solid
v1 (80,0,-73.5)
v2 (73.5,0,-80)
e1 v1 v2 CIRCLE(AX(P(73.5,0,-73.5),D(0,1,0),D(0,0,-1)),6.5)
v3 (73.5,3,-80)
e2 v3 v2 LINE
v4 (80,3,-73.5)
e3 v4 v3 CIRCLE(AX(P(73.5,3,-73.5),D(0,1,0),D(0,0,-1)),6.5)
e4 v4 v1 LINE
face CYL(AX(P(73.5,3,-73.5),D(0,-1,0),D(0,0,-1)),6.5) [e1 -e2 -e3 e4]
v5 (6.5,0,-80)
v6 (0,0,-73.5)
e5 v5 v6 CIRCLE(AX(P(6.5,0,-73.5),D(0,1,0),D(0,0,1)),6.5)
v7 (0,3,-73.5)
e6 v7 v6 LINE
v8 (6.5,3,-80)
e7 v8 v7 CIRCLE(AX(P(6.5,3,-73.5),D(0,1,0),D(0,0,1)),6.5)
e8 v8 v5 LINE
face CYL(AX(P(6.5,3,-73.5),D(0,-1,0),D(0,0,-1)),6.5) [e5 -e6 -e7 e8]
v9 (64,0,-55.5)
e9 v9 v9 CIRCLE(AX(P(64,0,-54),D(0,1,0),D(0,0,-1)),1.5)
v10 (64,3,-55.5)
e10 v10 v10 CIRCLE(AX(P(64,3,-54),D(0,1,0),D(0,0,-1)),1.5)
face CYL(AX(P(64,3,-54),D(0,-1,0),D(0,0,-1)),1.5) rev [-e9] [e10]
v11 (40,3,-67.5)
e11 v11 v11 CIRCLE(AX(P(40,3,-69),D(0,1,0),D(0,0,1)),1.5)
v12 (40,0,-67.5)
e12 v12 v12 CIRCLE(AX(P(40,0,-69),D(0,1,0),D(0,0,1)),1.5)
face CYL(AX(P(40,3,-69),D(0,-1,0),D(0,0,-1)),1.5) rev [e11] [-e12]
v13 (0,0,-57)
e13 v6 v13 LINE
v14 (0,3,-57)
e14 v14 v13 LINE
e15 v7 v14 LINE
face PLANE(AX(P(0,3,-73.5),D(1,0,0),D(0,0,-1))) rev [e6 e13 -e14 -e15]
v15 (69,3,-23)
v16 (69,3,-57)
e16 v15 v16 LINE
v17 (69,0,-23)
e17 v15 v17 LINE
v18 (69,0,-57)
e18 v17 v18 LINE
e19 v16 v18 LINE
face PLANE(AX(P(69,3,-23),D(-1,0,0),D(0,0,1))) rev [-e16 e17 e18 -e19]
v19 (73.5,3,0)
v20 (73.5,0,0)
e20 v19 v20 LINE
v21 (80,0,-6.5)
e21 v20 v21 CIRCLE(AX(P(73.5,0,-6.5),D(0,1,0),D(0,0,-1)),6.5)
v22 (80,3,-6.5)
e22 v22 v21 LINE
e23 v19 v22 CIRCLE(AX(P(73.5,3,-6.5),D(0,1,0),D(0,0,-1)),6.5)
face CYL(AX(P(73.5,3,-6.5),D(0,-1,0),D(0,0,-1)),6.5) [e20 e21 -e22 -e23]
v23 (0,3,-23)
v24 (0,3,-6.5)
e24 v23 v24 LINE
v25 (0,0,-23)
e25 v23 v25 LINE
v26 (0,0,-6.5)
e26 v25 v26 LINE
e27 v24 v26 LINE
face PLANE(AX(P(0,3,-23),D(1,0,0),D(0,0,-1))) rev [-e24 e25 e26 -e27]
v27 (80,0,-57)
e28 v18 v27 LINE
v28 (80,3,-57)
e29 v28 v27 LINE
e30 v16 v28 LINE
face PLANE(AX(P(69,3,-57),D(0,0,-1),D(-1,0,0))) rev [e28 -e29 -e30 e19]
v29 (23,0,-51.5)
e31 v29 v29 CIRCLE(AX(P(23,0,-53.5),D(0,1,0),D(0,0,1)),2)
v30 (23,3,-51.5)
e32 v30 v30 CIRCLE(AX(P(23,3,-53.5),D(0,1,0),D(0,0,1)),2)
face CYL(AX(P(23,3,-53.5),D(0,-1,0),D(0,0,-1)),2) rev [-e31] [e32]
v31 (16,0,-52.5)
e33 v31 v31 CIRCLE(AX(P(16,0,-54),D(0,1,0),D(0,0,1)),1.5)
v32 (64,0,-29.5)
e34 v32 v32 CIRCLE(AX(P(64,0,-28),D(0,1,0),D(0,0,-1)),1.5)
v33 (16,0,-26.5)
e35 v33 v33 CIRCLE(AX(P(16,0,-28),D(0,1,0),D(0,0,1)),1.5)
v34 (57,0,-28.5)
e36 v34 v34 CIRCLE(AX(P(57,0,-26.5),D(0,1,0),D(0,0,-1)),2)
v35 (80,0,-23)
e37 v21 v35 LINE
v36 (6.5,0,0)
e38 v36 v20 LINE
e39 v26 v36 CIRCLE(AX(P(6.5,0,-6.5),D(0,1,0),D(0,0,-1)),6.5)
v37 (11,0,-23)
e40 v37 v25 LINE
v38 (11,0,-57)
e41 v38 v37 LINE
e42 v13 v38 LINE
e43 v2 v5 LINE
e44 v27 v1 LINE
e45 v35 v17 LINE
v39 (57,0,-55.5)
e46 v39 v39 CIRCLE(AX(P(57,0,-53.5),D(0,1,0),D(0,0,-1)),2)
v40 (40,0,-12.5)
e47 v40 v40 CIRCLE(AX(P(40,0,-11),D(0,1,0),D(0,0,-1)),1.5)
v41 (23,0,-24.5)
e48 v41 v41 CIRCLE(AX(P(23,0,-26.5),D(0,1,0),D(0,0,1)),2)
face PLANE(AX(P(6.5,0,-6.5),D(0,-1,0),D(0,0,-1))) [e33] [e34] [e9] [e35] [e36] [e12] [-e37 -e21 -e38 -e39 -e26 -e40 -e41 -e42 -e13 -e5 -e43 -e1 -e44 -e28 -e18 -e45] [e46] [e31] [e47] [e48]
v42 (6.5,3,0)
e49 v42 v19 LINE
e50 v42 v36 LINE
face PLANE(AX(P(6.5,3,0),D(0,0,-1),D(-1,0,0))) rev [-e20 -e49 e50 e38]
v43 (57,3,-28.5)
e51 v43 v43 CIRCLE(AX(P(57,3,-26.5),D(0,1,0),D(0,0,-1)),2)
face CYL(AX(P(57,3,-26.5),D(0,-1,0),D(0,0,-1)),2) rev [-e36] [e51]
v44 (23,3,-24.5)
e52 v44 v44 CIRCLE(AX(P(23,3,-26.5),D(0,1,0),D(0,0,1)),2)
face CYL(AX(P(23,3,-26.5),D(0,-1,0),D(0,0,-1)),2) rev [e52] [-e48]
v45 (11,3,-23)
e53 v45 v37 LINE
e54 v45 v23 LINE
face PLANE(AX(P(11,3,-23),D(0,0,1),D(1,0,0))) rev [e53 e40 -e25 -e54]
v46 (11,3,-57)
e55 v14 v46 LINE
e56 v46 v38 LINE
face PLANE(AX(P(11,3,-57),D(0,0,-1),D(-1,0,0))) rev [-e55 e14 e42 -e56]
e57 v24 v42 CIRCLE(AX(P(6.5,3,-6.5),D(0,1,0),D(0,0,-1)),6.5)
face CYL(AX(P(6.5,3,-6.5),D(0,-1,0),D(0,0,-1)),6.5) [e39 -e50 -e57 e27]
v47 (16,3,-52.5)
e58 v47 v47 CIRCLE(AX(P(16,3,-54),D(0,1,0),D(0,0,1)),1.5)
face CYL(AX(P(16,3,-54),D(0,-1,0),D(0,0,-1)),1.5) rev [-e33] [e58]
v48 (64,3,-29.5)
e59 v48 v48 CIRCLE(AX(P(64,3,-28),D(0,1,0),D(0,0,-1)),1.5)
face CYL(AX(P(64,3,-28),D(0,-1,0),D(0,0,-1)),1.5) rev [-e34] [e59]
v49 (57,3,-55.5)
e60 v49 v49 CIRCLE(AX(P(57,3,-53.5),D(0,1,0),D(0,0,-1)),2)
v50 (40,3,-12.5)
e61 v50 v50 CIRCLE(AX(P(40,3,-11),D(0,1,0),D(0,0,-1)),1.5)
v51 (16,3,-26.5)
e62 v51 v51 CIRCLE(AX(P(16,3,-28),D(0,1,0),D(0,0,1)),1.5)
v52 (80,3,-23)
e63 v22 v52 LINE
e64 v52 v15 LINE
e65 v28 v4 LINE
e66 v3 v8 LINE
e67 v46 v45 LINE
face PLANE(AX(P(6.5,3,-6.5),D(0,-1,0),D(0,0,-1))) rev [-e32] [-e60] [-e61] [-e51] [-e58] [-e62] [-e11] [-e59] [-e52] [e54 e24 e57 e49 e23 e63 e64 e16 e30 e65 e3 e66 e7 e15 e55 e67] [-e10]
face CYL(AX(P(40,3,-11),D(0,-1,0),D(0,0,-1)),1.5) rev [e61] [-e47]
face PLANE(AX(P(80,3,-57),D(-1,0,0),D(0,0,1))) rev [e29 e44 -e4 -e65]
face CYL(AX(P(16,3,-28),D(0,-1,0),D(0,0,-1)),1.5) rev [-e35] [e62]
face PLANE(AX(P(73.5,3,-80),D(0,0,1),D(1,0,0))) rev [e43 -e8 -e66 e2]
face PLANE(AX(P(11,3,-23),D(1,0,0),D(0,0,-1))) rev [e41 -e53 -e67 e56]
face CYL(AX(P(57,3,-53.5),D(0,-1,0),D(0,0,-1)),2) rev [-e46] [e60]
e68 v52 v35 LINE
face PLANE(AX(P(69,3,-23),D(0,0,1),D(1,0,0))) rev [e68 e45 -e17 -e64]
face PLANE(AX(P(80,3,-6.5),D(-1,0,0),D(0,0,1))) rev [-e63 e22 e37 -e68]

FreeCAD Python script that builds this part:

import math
import FreeCAD as App
import Part
import Sketcher

V = App.Vector
Q = App.Units.Quantity

doc = App.newDocument("Part")
body = doc.addObject("PartDesign::Body", "Body")

# Sketch on XZ plane
sketch1 = body.newObject("Sketcher::SketchObject", "Sketch")
sketch1.AttachmentSupport = (doc.getObject("XZ_Plane"), [""])
sketch1.MapMode = "FlatFace"
sketch1.addGeometry([
    Part.LineSegment(V(6.5, 0, 0), V(73.5, 0, 0)),  # 0
    Part.ArcOfCircle(Part.Circle(V(73.5, -6.5, 0), V(0, 0, 1), 6.5), math.radians(0), math.radians(90)),  # 1
    Part.LineSegment(V(80, -6.5, 0), V(80, -23, 0)),  # 2
    Part.LineSegment(V(80, -23, 0), V(69, -23, 0)),  # 3
    Part.LineSegment(V(69, -23, 0), V(69, -57, 0)),  # 4
    Part.LineSegment(V(69, -57, 0), V(80, -57, 0)),  # 5
    Part.LineSegment(V(80, -57, 0), V(80, -73.5, 0)),  # 6
    Part.ArcOfCircle(Part.Circle(V(73.5, -73.5, 0), V(0, 0, 1), 6.5), math.radians(-90), math.radians(0)),  # 7
    Part.LineSegment(V(73.5, -80, 0), V(6.5, -80, 0)),  # 8
    Part.ArcOfCircle(Part.Circle(V(6.5, -73.5, 0), V(0, 0, 1), 6.5), math.radians(180), math.radians(270)),  # 9
    Part.LineSegment(V(0, -73.5, 0), V(0, -57, 0)),  # 10
    Part.LineSegment(V(0, -57, 0), V(11, -57, 0)),  # 11
    Part.LineSegment(V(11, -57, 0), V(11, -23, 0)),  # 12
    Part.LineSegment(V(11, -23, 0), V(0, -23, 0)),  # 13
    Part.LineSegment(V(0, -23, 0), V(0, -6.5, 0)),  # 14
    Part.ArcOfCircle(Part.Circle(V(6.5, -6.5, 0), V(0, 0, 1), 6.5), math.radians(90), math.radians(180)),  # 15
    Part.Circle(V(16, -28, 0), V(0, 0, 1), 1.5),  # 16
    Part.Circle(V(23, -26.5, 0), V(0, 0, 1), 2),  # 17
    Part.Circle(V(40, -11, 0), V(0, 0, 1), 1.5),  # 18
    Part.Circle(V(57, -26.5, 0), V(0, 0, 1), 2),  # 19
    Part.Circle(V(64, -28, 0), V(0, 0, 1), 1.5),  # 20
    Part.Circle(V(16, -54, 0), V(0, 0, 1), 1.5),  # 21
    Part.Circle(V(23, -53.5, 0), V(0, 0, 1), 2),  # 22
    Part.Circle(V(57, -53.5, 0), V(0, 0, 1), 2),  # 23
    Part.Circle(V(64, -54, 0), V(0, 0, 1), 1.5),  # 24
    Part.Circle(V(40, -69, 0), V(0, 0, 1), 1.5),  # 25
], False)
sketch1.addConstraint([
    Sketcher.Constraint("Tangent", 0, 2, 1, 2),
    Sketcher.Constraint("Tangent", 1, 1, 2, 1),
    Sketcher.Constraint("Coincident", 2, 2, 3, 1),
    Sketcher.Constraint("Coincident", 3, 2, 4, 1),
    Sketcher.Constraint("Coincident", 4, 2, 5, 1),
    Sketcher.Constraint("Coincident", 5, 2, 6, 1),
    Sketcher.Constraint("Tangent", 6, 2, 7, 2),
    Sketcher.Constraint("Tangent", 7, 1, 8, 1),
    Sketcher.Constraint("Tangent", 8, 2, 9, 2),
    Sketcher.Constraint("Tangent", 9, 1, 10, 1),
    Sketcher.Constraint("Coincident", 10, 2, 11, 1),
    Sketcher.Constraint("Coincident", 11, 2, 12, 1),
    Sketcher.Constraint("Coincident", 12, 2, 13, 1),
    Sketcher.Constraint("Coincident", 13, 2, 14, 1),
    Sketcher.Constraint("Tangent", 14, 2, 15, 2),
    Sketcher.Constraint("Tangent", 15, 1, 0, 1),
    Sketcher.Constraint("Horizontal", 0),
    Sketcher.Constraint("Vertical", 2),
    Sketcher.Constraint("Horizontal", 3),
    Sketcher.Constraint("Vertical", 4),
    Sketcher.Constraint("Horizontal", 5),
    Sketcher.Constraint("Vertical", 6),
    Sketcher.Constraint("Horizontal", 8),
    Sketcher.Constraint("Vertical", 10),
    Sketcher.Constraint("Horizontal", 11),
    Sketcher.Constraint("Vertical", 12),
    Sketcher.Constraint("Horizontal", 13),
    Sketcher.Constraint("Vertical", 14),
    Sketcher.Constraint("Equal", 1, 7),
    Sketcher.Constraint("Equal", 7, 9),
    Sketcher.Constraint("Equal", 9, 15),
    Sketcher.Constraint("Equal", 16, 18),
    Sketcher.Constraint("Equal", 17, 19),
    Sketcher.Constraint("Equal", 18, 20),
    Sketcher.Constraint("Equal", 20, 21),
    Sketcher.Constraint("Equal", 19, 22),
    Sketcher.Constraint("Equal", 22, 23),
    Sketcher.Constraint("Equal", 21, 24),
    Sketcher.Constraint("Equal", 24, 25),
    Sketcher.Constraint("PointOnObject", 0, 2, -1),
    Sketcher.Constraint("PointOnObject", 9, 1, -2),
    Sketcher.Constraint("PointOnObject", 13, 2, -2),
    Sketcher.Constraint("Horizontal", 17, 3, 19, 3),
    Sketcher.Constraint("Horizontal", 16, 3, 20, 3),
    Sketcher.Constraint("Horizontal", 22, 3, 23, 3),
    Sketcher.Constraint("Horizontal", 21, 3, 24, 3),
    Sketcher.Constraint("Horizontal", 5, 2, 10, 2),
    Sketcher.Constraint("Horizontal", 3, 2, 12, 2),
    Sketcher.Constraint("Vertical", 1, 3, 7, 3),
    Sketcher.Constraint("Vertical", 16, 3, 21, 3),
    Sketcher.Constraint("Vertical", 17, 3, 22, 3),
    Sketcher.Constraint("Vertical", 19, 3, 23, 3),
    Sketcher.Constraint("Vertical", 20, 3, 24, 3),
    Sketcher.Constraint("Vertical", 18, 3, 25, 3),
    Sketcher.Constraint("Equal", 5, 11),
    Sketcher.Constraint("Equal", 2, 6),
    Sketcher.Constraint("Diameter", 16, Q("3 mm")),
    Sketcher.Constraint("Diameter", 17, Q("4 mm")),
    Sketcher.Constraint("Radius", 1, Q("6.5 mm")),
    Sketcher.Constraint("DistanceX", 0, 1, 0, 2, Q("67 mm")),
    Sketcher.Constraint("DistanceX", 3, 2, 3, 1, Q("11 mm")),
    Sketcher.Constraint("DistanceY", 4, 2, 4, 1, Q("34 mm")),
    Sketcher.Constraint("DistanceY", 2, 2, 2, 1, Q("16.5 mm")),
    Sketcher.Constraint("DistanceX", -1, 1, 16, 3, Q("16 mm")),
    Sketcher.Constraint("DistanceY", 16, 3, -1, 1, Q("28 mm")),
    Sketcher.Constraint("DistanceX", -1, 1, 17, 3, Q("23 mm")),
    Sketcher.Constraint("DistanceX", -1, 1, 18, 3, Q("40 mm")),
    Sketcher.Constraint("DistanceY", 18, 3, -1, 1, Q("11 mm")),
    Sketcher.Constraint("DistanceX", -1, 1, 19, 3, Q("57 mm")),
    Sketcher.Constraint("DistanceX", -1, 1, 20, 3, Q("64 mm")),
    Sketcher.Constraint("DistanceY", 21, 3, -1, 1, Q("54 mm")),
    Sketcher.Constraint("DistanceY", 25, 3, -1, 1, Q("69 mm")),
    Sketcher.Constraint("DistanceY", 17, 3, 15, 3, Q("20 mm")),
    Sketcher.Constraint("DistanceY", 9, 3, 22, 3, Q("20 mm")),
])
pad1 = body.newObject("PartDesign::Pad", "Pad")
pad1.Profile = sketch1
pad1.Length = 3
pad1.Reversed = True

doc.recompute()
